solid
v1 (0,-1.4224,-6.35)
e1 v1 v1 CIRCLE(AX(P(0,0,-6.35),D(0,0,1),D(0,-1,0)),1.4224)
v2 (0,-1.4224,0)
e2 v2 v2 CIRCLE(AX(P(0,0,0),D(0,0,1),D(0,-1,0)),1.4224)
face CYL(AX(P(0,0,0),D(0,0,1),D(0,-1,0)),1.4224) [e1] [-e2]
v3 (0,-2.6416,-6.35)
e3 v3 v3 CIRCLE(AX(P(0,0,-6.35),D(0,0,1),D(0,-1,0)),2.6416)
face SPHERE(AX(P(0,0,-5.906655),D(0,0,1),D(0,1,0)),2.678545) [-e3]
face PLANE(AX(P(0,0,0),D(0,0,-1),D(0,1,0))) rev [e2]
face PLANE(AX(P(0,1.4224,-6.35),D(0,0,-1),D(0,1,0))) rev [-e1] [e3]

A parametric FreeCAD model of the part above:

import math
import FreeCAD as App
import Part
import Sketcher
from FreeCAD import Vector
Q = App.Units.Quantity

doc = App.newDocument("Part")
params = doc.addObject("Spreadsheet::Sheet", "Params")
for row, (alias, value) in enumerate([
    ("sketch1_height", "0.25 in"),
    ("sketch1_width", "0.056 in"),
    ("sketch1_width2", "0.048 in"),
    ("sketch1_height2", "0.338 in"),
    ("revolution_angle", "360 deg"),
], start=1):
    params.set(f"A{row}", alias)
    params.set(f"B{row}", "=" + value)
    params.setAlias(f"B{row}", alias)

body = doc.addObject("PartDesign::Body", "Body")

sketch1 = body.newObject("Sketcher::SketchObject", "Sketch")
sketch1.AttachmentSupport = (doc.getObject("YZ_Plane"), [""])
sketch1.MapMode = "FlatFace"
sketch1.addGeometry([
    Part.LineSegment(Vector(1.4224, 0, 0), Vector(0, 0, 0)),
    Part.LineSegment(Vector(0, 0, 0), Vector(0, -8.5852, 0)),
    Part.ArcOfCircle(Part.Circle(Vector(0, -5.906655, 0), Vector(0, 0, 1), 2.678545), math.radians(-90), math.radians(-9.527283)),
    Part.LineSegment(Vector(2.6416, -6.35, 0), Vector(1.4224, -6.35, 0)),
    Part.LineSegment(Vector(1.4224, -6.35, 0), Vector(1.4224, 0, 0)),
], False)
sketch1.addConstraint([
    Sketcher.Constraint("Coincident", 0, 2, 1, 1),
    Sketcher.Constraint("Coincident", 1, 2, 2, 1),
    Sketcher.Constraint("Coincident", 2, 2, 3, 1),
    Sketcher.Constraint("Coincident", 3, 2, 4, 1),
    Sketcher.Constraint("Coincident", 4, 2, 0, 1),
    Sketcher.Constraint("Horizontal", 0),
    Sketcher.Constraint("Vertical", 1),
    Sketcher.Constraint("Horizontal", 3),
    Sketcher.Constraint("Vertical", 4),
    Sketcher.Constraint("Coincident", 0, 2, -1, 1),
    Sketcher.Constraint("PointOnObject", 2, 3, -2),
    Sketcher.Constraint("DistanceY", 4, 1, 4, 2, Q("0.25 in")),
    Sketcher.Constraint("DistanceX", 0, 2, 0, 1, Q("0.056 in")),
    Sketcher.Constraint("DistanceX", 3, 2, 3, 1, Q("0.048 in")),
    Sketcher.Constraint("DistanceY", 1, 2, 1, 1, Q("0.338 in")),
])
sketch1.setExpression("Constraints[11]", "Params.sketch1_height")
sketch1.setExpression("Constraints[12]", "Params.sketch1_width")
sketch1.setExpression("Constraints[13]", "Params.sketch1_width2")
sketch1.setExpression("Constraints[14]", "Params.sketch1_height2")
revolution = body.newObject("PartDesign::Revolution", "Revolution")
revolution.Profile = sketch1
revolution.ReferenceAxis = (sketch1, ["V_Axis"])
revolution.setExpression("Angle", "Params.revolution_angle")

doc.recompute()
